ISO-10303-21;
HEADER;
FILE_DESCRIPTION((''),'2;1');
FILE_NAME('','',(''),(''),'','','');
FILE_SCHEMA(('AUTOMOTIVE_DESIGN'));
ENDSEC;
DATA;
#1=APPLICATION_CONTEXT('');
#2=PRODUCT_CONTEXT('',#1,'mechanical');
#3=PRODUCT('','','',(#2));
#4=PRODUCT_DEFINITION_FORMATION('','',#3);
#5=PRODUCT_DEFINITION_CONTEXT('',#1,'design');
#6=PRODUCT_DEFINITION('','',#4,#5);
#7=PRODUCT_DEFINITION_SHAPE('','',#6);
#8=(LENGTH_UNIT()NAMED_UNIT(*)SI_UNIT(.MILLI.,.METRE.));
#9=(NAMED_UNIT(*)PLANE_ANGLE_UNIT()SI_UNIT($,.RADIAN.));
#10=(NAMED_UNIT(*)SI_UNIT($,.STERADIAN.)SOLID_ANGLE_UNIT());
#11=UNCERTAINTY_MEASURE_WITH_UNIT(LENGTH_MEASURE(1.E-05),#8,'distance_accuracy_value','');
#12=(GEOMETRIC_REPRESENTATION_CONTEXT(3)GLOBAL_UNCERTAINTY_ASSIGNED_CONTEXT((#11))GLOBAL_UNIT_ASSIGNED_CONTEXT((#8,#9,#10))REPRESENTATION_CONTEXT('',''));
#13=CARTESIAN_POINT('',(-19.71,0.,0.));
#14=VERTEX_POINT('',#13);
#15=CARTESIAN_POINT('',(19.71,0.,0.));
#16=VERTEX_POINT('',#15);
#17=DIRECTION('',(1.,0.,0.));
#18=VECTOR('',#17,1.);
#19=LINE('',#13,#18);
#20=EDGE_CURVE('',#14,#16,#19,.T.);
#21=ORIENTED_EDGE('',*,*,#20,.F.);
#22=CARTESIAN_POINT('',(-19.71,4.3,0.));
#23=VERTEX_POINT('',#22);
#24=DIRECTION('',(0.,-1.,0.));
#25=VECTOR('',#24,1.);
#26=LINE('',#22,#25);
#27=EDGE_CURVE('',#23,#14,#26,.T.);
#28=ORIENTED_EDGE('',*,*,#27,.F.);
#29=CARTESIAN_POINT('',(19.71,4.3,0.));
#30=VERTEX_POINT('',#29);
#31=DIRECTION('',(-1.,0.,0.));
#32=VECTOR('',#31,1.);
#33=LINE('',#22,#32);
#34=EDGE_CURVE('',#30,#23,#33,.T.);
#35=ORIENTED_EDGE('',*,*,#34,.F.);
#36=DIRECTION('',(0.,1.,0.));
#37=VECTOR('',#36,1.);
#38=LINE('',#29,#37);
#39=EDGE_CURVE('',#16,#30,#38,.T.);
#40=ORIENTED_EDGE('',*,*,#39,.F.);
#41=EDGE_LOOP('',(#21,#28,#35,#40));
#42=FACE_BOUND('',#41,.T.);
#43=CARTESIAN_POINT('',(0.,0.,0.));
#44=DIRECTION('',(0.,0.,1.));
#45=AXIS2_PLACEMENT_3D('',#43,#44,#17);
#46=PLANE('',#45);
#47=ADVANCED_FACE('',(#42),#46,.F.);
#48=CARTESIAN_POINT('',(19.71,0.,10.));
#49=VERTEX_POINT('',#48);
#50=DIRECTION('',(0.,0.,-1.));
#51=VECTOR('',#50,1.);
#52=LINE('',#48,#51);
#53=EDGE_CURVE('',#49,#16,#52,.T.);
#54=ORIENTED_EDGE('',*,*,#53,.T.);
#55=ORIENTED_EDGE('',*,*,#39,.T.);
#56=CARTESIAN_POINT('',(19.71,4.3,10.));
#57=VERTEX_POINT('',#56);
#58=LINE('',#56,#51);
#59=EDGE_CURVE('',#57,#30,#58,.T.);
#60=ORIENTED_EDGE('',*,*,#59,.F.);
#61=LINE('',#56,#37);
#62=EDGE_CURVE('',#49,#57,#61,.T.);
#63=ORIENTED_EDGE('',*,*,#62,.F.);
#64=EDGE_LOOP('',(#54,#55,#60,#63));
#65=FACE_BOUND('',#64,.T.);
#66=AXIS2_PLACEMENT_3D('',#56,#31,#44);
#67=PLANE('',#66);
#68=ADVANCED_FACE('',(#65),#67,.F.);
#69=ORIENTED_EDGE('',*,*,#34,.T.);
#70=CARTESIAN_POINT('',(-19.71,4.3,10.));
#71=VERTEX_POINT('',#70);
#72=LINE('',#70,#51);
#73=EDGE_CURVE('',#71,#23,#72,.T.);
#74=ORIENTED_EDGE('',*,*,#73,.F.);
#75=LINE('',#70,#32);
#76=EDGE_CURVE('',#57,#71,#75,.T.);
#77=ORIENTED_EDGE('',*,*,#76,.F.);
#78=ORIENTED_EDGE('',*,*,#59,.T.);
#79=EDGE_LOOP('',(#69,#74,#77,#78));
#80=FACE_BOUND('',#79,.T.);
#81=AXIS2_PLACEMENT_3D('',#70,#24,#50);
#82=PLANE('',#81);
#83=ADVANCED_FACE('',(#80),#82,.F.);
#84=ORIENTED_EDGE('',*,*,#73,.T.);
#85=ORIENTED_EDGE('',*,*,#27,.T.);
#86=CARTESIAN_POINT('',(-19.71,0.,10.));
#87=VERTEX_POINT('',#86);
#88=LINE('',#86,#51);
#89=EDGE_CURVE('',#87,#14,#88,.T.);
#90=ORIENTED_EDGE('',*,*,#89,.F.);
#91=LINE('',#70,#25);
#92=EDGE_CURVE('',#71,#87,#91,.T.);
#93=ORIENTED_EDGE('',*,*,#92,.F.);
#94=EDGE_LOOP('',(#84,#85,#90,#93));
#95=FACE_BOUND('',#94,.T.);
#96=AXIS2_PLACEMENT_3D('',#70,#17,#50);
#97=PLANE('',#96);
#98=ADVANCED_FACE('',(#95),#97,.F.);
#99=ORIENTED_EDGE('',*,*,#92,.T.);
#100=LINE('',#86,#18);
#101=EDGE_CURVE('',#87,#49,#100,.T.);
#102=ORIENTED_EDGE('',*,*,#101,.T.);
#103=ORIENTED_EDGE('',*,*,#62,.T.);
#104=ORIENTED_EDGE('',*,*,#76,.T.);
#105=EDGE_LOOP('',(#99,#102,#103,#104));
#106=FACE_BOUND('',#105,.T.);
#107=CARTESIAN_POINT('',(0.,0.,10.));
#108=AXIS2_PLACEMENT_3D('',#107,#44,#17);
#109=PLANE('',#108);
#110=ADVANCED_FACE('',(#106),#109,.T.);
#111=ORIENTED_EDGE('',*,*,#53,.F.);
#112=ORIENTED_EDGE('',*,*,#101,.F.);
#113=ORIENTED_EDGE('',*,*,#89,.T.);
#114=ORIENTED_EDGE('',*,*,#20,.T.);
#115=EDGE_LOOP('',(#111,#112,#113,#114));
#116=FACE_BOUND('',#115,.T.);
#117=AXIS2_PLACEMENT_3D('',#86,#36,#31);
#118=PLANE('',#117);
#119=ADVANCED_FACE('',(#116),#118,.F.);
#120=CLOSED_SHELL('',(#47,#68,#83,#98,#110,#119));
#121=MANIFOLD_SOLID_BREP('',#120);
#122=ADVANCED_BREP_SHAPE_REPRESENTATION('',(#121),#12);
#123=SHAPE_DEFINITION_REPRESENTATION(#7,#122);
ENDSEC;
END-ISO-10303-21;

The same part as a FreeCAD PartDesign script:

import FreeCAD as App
import Part
import Sketcher
from FreeCAD import Vector
Q = App.Units.Quantity

doc = App.newDocument("Part")
body = doc.addObject("PartDesign::Body", "Body")

# Sketch on XY plane
sketch1 = doc.addObject("Sketcher::SketchObject", "Sketch")
body.addObject(sketch1)
sketch1.AttachmentSupport = (doc.XY_Plane, [""])
sketch1.MapMode = "FlatFace"
sketch1.addGeometry([
    Part.LineSegment(Vector(-19.7, 4.3, 0), Vector(-19.7, 0, 0)),
    Part.LineSegment(Vector(-19.7, 0, 0), Vector(19.7, 0, 0)),
    Part.LineSegment(Vector(19.7, 0, 0), Vector(19.7, 4.3, 0)),
    Part.LineSegment(Vector(19.7, 4.3, 0), Vector(-19.7, 4.3, 0)),
], False)
sketch1.addConstraint([
    Sketcher.Constraint("Coincident", 0, 2, 1, 1),
    Sketcher.Constraint("Coincident", 1, 2, 2, 1),
    Sketcher.Constraint("Coincident", 2, 2, 3, 1),
    Sketcher.Constraint("Coincident", 3, 2, 0, 1),
    Sketcher.Constraint("Vertical", 0),
    Sketcher.Constraint("Horizontal", 1),
    Sketcher.Constraint("Vertical", 2),
    Sketcher.Constraint("Horizontal", 3),
    Sketcher.Constraint("Symmetric", 0, 2, 1, 2, -1, 1),
    Sketcher.Constraint("DistanceY", 0, 2, 0, 1, Q("4.3 mm")),
    Sketcher.Constraint("DistanceX", 1, 1, 1, 2, Q("39.42 mm")),
])
pad1 = doc.addObject("PartDesign::Pad", "Pad")
body.addObject(pad1)
pad1.Profile = sketch1
pad1.Length = 10

doc.recompute()
